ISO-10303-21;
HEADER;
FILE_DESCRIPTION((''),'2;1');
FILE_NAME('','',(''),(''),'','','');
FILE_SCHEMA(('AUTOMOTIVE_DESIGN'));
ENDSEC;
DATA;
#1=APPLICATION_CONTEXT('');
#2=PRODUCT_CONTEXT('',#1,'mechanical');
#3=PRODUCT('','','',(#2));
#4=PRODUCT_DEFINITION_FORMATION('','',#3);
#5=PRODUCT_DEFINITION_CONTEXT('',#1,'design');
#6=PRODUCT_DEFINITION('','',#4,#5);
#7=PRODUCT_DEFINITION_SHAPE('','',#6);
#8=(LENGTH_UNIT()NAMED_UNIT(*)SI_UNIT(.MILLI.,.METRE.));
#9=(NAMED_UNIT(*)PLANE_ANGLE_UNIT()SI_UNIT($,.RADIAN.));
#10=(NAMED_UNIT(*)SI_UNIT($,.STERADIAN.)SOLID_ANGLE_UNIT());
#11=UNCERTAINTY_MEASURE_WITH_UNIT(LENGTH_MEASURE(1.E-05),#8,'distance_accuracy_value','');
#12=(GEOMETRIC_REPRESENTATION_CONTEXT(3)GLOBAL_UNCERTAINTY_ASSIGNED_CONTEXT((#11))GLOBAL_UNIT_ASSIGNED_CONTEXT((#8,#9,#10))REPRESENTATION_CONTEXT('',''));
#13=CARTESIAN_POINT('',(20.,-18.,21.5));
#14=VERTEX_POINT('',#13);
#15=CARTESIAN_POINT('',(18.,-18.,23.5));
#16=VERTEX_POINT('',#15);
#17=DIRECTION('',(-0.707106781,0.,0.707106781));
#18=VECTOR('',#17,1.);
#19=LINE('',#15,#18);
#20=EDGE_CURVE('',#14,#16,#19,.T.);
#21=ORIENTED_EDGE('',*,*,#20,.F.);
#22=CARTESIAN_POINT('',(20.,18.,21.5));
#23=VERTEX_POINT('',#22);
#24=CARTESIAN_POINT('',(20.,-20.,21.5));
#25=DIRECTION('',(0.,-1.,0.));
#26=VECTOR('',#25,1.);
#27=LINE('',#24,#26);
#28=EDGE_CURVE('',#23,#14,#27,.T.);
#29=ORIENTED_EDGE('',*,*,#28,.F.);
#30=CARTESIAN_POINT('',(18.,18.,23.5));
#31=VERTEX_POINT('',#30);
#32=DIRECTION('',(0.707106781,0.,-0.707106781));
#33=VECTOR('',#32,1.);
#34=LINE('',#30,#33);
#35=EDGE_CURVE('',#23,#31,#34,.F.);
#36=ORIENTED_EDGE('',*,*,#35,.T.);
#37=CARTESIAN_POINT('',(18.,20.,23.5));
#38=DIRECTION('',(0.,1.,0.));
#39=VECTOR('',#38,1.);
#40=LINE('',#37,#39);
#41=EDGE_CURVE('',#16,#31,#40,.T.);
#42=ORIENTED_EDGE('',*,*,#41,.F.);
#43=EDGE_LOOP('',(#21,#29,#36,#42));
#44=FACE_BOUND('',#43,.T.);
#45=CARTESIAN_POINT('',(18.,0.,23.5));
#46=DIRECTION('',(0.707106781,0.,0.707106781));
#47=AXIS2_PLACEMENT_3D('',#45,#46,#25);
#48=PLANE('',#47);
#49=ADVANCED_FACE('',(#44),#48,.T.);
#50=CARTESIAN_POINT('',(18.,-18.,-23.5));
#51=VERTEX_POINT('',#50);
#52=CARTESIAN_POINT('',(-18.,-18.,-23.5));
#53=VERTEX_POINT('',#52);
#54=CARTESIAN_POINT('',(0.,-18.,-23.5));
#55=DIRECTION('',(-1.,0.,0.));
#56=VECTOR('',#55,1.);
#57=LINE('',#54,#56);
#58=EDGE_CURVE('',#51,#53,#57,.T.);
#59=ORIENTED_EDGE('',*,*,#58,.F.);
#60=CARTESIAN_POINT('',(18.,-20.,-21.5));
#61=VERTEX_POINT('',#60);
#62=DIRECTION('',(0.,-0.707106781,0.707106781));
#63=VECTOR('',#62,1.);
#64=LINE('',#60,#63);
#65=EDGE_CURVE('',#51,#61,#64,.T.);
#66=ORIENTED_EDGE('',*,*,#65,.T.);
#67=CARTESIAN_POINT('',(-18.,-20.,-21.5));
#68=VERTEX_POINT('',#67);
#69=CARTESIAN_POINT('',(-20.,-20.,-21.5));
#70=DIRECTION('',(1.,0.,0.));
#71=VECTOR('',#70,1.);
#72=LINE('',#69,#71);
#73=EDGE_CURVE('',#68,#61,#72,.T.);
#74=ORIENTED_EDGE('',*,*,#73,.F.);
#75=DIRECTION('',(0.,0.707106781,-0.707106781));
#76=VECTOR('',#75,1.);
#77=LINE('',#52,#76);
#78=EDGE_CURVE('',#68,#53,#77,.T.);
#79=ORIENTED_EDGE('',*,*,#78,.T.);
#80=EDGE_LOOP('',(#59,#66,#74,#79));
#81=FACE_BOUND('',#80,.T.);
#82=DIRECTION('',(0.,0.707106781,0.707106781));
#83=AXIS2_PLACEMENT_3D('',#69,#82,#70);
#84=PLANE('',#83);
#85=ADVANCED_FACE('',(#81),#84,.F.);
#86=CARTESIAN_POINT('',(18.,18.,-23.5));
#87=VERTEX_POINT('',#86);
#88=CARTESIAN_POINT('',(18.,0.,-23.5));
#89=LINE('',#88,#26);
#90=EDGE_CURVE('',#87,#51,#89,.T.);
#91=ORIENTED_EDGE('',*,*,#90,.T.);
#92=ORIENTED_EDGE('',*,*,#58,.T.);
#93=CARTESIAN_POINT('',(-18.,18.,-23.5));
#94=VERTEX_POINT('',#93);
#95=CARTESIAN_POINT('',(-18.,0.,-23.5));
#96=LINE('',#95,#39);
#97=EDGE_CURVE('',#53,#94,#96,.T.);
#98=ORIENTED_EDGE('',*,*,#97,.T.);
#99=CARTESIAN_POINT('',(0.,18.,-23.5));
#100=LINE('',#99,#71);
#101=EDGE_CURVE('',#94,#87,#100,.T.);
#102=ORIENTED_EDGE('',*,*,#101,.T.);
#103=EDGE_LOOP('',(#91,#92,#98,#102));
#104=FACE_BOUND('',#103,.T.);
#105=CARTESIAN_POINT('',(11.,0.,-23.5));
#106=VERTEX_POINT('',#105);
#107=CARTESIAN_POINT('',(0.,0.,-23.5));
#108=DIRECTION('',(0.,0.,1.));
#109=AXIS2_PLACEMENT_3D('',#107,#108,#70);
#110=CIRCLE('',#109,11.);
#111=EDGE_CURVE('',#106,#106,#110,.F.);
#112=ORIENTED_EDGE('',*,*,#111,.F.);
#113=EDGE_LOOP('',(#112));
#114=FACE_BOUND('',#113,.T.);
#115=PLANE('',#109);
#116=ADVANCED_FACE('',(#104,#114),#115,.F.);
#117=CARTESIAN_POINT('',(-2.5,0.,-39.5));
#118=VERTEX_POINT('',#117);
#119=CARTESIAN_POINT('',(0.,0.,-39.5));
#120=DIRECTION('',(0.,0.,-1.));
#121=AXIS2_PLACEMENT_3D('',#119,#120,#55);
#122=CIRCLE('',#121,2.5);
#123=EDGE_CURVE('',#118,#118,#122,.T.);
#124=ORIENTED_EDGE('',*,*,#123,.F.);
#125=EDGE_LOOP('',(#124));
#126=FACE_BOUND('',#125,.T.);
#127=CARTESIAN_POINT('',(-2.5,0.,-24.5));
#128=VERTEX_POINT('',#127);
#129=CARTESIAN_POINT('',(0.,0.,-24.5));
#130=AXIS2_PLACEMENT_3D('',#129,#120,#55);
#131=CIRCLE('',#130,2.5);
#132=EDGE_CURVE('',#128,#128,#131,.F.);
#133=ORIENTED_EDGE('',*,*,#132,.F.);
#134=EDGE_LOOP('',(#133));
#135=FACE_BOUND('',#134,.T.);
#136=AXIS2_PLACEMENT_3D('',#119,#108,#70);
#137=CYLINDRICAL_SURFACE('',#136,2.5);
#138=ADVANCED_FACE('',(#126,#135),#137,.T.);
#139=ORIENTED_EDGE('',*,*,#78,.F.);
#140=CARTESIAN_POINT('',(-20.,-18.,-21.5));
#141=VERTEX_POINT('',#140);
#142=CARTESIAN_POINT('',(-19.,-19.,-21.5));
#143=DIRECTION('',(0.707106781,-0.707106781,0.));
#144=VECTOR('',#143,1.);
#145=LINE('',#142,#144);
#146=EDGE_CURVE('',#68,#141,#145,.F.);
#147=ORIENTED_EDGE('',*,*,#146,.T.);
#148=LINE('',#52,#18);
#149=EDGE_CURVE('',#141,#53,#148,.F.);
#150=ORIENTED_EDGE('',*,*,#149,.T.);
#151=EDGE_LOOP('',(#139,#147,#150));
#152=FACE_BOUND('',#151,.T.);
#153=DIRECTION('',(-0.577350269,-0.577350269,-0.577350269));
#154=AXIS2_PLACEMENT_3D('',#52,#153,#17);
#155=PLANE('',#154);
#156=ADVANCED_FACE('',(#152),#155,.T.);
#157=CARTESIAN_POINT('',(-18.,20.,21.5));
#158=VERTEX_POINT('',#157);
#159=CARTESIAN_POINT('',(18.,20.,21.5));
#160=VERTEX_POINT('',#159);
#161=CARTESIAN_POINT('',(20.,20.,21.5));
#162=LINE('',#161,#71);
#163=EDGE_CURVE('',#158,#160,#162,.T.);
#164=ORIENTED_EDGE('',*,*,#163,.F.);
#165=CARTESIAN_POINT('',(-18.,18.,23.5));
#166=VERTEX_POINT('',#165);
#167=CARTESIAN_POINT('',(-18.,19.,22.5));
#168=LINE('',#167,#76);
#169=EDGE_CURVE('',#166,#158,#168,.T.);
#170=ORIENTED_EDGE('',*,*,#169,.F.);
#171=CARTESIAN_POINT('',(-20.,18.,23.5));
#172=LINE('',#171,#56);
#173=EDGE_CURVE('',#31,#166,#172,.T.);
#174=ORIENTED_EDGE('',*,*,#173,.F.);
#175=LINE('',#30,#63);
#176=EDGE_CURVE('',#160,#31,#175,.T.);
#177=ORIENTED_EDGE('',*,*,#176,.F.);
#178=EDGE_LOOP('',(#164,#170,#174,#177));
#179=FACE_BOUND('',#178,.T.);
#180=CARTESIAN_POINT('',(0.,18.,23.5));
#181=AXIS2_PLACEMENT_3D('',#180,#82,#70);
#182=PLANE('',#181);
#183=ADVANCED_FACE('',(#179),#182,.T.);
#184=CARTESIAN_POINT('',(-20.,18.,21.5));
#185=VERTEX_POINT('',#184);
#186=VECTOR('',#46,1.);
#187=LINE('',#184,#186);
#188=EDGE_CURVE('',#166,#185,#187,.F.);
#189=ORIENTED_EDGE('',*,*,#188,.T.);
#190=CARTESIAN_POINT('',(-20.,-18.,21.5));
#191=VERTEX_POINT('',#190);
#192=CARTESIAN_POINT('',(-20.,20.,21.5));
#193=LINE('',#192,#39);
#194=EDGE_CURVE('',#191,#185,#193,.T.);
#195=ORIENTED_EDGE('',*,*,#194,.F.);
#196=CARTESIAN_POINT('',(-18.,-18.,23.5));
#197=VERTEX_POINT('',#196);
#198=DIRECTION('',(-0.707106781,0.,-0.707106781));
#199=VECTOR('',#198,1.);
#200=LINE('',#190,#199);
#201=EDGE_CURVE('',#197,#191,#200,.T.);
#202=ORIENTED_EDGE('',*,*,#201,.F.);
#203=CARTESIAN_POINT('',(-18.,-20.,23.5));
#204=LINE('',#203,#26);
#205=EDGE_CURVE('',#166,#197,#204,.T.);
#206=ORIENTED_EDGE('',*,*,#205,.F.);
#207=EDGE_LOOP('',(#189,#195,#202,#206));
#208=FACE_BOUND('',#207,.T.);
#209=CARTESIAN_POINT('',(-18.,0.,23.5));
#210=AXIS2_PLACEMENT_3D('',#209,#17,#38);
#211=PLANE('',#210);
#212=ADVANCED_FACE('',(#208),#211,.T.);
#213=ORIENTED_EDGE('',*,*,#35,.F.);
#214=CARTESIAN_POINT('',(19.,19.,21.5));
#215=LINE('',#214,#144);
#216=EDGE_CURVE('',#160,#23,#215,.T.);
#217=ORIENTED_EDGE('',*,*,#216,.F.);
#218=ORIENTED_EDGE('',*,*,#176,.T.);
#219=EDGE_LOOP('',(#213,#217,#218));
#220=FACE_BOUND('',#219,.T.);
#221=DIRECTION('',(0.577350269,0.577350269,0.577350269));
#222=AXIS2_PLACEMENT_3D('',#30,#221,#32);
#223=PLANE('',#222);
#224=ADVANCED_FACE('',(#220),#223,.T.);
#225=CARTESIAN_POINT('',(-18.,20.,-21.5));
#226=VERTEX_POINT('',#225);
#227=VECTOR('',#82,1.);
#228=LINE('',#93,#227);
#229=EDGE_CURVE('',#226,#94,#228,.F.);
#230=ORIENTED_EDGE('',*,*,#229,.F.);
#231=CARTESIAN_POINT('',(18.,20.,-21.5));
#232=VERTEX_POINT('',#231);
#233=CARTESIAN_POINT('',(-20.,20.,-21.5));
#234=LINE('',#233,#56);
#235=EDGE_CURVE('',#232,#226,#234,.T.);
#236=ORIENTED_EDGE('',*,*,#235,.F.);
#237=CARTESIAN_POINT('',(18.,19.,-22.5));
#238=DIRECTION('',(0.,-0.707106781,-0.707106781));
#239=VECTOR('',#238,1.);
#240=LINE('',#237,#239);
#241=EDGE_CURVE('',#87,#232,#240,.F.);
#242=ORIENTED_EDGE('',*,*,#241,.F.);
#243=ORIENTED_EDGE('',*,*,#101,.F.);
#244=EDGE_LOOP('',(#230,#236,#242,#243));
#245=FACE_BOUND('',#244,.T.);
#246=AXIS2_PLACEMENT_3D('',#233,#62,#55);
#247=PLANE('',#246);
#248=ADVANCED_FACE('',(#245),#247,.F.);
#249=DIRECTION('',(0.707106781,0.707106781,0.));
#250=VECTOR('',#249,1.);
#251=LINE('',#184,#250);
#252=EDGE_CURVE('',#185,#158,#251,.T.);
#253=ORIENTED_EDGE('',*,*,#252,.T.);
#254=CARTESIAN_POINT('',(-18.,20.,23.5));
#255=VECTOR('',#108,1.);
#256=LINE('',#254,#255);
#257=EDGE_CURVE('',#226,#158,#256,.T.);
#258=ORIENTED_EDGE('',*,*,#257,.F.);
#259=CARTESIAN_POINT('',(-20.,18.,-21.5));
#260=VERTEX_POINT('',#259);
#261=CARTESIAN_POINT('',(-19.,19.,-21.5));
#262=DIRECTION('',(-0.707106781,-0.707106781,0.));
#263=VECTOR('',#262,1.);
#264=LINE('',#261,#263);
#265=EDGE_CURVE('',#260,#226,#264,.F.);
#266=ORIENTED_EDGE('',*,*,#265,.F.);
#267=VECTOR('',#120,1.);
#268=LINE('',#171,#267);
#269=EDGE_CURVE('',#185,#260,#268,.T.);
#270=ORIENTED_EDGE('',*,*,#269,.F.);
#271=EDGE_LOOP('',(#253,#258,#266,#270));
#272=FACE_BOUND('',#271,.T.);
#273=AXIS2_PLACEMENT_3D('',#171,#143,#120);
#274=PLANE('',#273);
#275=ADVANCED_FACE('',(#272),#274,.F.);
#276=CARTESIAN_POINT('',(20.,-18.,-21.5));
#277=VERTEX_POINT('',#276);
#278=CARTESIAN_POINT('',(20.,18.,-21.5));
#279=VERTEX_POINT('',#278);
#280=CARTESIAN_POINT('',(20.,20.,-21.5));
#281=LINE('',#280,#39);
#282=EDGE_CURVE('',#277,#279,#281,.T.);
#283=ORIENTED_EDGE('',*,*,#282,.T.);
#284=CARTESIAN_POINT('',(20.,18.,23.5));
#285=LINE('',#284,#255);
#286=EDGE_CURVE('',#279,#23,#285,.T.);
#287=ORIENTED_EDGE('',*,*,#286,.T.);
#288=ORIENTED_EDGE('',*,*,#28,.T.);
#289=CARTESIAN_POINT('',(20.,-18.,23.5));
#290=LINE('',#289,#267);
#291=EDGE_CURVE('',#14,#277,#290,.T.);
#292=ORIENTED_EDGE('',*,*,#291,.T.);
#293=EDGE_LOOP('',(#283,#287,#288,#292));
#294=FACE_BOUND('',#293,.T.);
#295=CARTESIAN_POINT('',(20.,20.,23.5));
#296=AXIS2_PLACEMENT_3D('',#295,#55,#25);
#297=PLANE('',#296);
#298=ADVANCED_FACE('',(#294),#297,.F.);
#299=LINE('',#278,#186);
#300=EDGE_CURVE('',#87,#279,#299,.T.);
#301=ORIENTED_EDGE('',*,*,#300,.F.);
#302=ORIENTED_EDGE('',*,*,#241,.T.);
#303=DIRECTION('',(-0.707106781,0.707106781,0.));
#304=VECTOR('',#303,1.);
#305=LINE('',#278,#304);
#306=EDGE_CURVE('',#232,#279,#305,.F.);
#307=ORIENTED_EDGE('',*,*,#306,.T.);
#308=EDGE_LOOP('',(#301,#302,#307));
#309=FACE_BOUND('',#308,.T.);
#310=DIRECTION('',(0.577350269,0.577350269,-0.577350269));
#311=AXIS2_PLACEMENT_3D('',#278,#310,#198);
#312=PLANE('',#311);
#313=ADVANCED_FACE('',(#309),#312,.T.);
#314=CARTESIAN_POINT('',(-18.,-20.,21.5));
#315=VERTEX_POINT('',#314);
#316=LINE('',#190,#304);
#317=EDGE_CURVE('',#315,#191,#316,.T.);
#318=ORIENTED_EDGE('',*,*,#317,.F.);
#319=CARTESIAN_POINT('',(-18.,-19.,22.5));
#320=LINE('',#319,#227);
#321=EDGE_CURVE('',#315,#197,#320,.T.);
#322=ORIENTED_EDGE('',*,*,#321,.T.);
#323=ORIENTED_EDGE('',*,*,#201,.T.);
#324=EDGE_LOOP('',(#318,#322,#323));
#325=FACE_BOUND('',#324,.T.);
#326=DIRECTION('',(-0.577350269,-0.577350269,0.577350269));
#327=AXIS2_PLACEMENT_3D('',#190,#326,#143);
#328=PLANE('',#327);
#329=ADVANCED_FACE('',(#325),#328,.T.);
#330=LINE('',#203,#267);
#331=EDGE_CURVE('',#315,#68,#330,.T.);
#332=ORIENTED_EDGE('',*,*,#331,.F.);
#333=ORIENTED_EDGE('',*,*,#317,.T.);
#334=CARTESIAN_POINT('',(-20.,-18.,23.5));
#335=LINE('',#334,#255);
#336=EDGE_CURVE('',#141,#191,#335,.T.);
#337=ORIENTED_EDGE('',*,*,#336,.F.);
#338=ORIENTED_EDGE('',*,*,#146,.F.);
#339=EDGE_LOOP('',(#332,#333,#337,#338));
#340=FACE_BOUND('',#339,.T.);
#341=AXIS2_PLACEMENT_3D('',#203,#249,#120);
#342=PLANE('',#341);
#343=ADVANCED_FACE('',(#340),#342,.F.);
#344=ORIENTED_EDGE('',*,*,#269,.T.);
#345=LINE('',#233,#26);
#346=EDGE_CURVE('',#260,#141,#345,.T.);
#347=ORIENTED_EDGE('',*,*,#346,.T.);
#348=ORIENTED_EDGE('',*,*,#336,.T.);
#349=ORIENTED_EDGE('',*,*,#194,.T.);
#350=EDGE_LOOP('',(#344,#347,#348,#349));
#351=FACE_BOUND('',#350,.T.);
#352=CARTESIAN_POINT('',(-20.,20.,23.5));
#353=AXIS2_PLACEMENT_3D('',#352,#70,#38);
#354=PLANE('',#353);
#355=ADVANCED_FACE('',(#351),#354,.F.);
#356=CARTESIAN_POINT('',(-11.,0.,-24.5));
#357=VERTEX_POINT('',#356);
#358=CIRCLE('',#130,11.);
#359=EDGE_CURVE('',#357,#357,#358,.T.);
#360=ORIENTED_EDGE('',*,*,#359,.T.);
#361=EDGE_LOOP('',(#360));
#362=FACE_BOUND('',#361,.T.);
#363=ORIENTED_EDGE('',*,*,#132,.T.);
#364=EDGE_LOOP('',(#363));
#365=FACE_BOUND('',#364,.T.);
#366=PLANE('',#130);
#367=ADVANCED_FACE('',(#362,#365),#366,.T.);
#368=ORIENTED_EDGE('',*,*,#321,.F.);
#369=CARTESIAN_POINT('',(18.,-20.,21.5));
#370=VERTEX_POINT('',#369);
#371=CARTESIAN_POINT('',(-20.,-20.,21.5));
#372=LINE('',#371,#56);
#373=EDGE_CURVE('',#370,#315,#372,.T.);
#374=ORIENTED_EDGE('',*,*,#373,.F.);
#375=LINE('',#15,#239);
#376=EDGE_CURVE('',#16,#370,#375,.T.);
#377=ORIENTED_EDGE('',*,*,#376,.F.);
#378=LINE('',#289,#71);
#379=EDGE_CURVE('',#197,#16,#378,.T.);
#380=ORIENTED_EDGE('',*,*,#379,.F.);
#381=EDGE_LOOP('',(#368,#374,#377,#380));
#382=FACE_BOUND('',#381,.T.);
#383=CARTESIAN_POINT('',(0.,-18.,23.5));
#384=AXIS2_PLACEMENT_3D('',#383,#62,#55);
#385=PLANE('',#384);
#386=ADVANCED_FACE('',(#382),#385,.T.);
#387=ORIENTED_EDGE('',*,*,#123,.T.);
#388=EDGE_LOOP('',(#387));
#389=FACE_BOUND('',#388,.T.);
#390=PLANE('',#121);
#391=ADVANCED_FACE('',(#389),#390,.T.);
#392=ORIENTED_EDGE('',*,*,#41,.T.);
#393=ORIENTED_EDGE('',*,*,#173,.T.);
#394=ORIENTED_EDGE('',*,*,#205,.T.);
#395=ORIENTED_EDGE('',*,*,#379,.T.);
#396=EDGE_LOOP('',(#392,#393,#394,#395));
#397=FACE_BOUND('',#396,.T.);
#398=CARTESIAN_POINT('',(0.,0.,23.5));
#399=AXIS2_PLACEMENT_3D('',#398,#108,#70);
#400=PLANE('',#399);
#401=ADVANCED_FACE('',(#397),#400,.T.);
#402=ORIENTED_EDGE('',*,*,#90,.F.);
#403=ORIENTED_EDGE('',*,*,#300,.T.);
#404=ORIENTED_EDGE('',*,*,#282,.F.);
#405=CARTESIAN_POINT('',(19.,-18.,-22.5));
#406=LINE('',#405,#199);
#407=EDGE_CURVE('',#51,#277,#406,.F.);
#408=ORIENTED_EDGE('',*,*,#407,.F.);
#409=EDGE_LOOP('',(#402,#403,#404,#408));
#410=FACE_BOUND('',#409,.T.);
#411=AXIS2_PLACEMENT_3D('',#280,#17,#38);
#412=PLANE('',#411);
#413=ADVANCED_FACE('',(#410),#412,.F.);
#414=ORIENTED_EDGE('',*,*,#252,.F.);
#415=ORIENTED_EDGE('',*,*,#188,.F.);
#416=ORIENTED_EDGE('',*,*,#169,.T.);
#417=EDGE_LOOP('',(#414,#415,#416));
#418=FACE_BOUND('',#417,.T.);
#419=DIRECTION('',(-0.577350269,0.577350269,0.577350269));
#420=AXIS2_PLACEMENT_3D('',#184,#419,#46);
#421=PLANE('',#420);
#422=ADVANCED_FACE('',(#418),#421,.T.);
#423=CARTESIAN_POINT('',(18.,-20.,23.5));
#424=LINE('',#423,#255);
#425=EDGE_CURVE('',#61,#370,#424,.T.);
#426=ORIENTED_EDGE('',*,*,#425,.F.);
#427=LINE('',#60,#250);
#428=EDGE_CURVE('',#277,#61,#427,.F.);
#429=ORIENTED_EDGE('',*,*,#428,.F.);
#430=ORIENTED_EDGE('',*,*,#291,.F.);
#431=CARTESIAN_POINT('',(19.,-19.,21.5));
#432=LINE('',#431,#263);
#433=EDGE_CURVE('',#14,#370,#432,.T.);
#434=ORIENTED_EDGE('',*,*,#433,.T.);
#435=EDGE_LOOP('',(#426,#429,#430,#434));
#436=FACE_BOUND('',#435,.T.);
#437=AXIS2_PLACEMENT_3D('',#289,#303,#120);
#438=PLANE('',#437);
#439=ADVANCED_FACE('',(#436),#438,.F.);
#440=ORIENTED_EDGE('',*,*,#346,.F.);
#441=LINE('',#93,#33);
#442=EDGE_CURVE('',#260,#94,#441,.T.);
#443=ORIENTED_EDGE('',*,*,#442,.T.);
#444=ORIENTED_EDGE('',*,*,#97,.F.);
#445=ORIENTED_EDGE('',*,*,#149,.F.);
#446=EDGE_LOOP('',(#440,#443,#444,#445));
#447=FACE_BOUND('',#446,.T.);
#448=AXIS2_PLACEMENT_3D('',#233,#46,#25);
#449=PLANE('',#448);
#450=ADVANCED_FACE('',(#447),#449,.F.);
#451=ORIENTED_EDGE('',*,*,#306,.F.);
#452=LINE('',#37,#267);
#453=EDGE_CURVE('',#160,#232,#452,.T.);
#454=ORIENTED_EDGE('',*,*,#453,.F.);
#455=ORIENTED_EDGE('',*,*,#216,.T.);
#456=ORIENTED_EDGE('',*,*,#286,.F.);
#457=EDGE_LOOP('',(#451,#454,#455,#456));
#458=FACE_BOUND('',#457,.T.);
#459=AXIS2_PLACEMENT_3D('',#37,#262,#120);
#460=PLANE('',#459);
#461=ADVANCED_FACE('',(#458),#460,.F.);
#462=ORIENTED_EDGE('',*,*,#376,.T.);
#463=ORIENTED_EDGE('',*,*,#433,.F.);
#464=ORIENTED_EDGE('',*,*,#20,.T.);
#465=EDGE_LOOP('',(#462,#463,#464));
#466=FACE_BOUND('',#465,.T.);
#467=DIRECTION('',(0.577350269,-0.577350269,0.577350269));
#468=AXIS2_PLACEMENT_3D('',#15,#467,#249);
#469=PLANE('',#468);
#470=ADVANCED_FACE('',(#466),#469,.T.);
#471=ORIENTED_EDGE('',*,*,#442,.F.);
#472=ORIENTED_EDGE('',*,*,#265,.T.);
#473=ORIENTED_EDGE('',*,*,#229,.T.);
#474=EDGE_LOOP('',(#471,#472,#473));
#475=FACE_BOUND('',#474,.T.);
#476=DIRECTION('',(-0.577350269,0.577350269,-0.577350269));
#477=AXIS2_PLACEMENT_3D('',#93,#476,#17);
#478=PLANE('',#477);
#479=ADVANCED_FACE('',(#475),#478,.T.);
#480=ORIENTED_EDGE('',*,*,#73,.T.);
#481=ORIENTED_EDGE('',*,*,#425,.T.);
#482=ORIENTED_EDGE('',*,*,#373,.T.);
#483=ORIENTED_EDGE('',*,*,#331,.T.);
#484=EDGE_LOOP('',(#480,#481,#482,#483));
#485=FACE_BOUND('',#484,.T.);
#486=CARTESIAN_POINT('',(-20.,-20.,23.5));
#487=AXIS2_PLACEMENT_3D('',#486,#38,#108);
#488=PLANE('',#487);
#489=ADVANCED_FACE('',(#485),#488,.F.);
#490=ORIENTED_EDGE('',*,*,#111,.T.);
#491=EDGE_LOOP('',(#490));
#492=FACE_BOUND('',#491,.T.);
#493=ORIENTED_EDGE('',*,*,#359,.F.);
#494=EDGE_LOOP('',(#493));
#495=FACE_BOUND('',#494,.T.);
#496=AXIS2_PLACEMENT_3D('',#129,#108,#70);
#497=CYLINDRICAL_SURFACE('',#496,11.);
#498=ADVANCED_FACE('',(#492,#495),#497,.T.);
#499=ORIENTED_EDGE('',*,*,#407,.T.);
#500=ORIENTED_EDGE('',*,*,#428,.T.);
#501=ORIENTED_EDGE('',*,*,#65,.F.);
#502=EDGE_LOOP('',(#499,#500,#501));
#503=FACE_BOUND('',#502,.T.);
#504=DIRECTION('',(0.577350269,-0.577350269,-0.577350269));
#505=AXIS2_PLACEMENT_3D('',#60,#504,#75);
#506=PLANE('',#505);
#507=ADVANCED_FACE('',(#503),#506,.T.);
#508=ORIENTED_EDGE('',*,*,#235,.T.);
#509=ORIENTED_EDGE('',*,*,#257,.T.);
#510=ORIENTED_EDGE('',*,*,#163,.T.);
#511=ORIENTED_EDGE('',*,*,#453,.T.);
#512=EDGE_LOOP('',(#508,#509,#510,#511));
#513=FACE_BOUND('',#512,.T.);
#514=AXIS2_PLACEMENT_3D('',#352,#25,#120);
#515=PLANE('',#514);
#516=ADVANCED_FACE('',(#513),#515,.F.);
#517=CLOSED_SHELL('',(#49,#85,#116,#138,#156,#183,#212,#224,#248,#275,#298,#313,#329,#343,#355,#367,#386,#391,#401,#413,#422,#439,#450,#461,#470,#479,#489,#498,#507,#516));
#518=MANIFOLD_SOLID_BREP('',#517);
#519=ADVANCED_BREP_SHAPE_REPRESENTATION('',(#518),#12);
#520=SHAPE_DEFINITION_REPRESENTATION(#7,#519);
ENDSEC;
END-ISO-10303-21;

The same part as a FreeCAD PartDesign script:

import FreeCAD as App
import Part
import Sketcher
Q = App.Units.Quantity


def add_polygon(sketch, points):
    """Adds a closed chain of lines whose ends are joined by coincident constraints."""
    first, n = sketch.GeometryCount, len(points)
    for a, b in zip(points, points[1:] + points[:1]):
        sketch.addGeometry(Part.LineSegment(App.Vector(*a, 0), App.Vector(*b, 0)), False)
    for i in range(n):
        sketch.addConstraint(Sketcher.Constraint("Coincident", first + i, 2, first + (i + 1) % n, 1))

doc = App.newDocument("Part")
params = doc.addObject("Spreadsheet::Sheet", "Params")
for row, (alias, value) in enumerate([
    ("sketch1_width", "40 mm"),
    ("pad1_length", "47 mm"),
    ("chamfer_size", "2 mm"),
    ("sketch2_diameter", "22 mm"),
    ("pad2_length", "2 mm"),
    ("sketch3_diameter", "5 mm"),
    ("pad3_length", "30 mm"),
], start=1):
    params.set(f"A{row}", alias)
    params.set(f"B{row}", "=" + value)
    params.setAlias(f"B{row}", alias)

body = doc.addObject("PartDesign::Body", "Body")

# Sketch on XY plane
sketch1 = doc.addObject("Sketcher::SketchObject", "Sketch")
body.addObject(sketch1)
sketch1.AttachmentSupport = (doc.XY_Plane, [""])
sketch1.MapMode = "FlatFace"
add_polygon(sketch1, [(-20, 20), (-20, -20), (20, -20), (20, 20)])  # lines 0-3
sketch1.addConstraint([
    Sketcher.Constraint("Vertical", 0),
    Sketcher.Constraint("Horizontal", 1),
    Sketcher.Constraint("Vertical", 2),
    Sketcher.Constraint("Horizontal", 3),
    Sketcher.Constraint("Symmetric", 0, 2, 2, 2, -1, 1),
    Sketcher.Constraint("Equal", 3, 0),
    Sketcher.Constraint("DistanceX", 1, 1, 1, 2, Q("40 mm")),
])
sketch1.setExpression("Constraints[10]", "Params.sketch1_width")
pad1 = doc.addObject("PartDesign::Pad", "Pad")
body.addObject(pad1)
pad1.Profile = sketch1
pad1.setExpression("Length", "Params.pad1_length")
pad1.Midplane = True
doc.recompute()

chamfer = doc.addObject("PartDesign::Chamfer", "Chamfer")
body.addObject(chamfer)
chamfer.Base = (pad1, ["Edge1"])
chamfer.UseAllEdges = True
chamfer.setExpression("Size", "Params.chamfer_size")

# Sketch on XY plane
sketch2 = doc.addObject("Sketcher::SketchObject", "Sketch001")
body.addObject(sketch2)
sketch2.AttachmentSupport = (doc.XY_Plane, [""])
sketch2.MapMode = "FlatFace"
sketch2.AttachmentOffset = App.Placement(App.Vector(0, 0, -23.5), App.Rotation())
sketch2.addGeometry(Part.Circle(App.Vector(0, 0, 0), App.Vector(0, 0, 1), 11), False)
sketch2.addConstraint([
    Sketcher.Constraint("Coincident", 0, 3, -1, 1),
    Sketcher.Constraint("Diameter", 0, Q("22 mm")),
])
sketch2.setExpression("Constraints[1]", "Params.sketch2_diameter")
pad2 = doc.addObject("PartDesign::Pad", "Pad001")
body.addObject(pad2)
pad2.Profile = sketch2
pad2.setExpression("Length", "Params.pad2_length")
pad2.Midplane = True

# Sketch on XY plane
sketch3 = doc.addObject("Sketcher::SketchObject", "Sketch002")
body.addObject(sketch3)
sketch3.AttachmentSupport = (doc.XY_Plane, [""])
sketch3.MapMode = "FlatFace"
sketch3.AttachmentOffset = App.Placement(App.Vector(0, 0, -24.5), App.Rotation())
sketch3.addGeometry(Part.Circle(App.Vector(0, 0, 0), App.Vector(0, 0, 1), 2.5), False)
sketch3.addConstraint([
    Sketcher.Constraint("Coincident", 0, 3, -1, 1),
    Sketcher.Constraint("Diameter", 0, Q("5 mm")),
])
sketch3.setExpression("Constraints[1]", "Params.sketch3_diameter")
pad3 = doc.addObject("PartDesign::Pad", "Pad002")
body.addObject(pad3)
pad3.Profile = sketch3
pad3.setExpression("Length", "Params.pad3_length")
pad3.Midplane = True

doc.recompute()
